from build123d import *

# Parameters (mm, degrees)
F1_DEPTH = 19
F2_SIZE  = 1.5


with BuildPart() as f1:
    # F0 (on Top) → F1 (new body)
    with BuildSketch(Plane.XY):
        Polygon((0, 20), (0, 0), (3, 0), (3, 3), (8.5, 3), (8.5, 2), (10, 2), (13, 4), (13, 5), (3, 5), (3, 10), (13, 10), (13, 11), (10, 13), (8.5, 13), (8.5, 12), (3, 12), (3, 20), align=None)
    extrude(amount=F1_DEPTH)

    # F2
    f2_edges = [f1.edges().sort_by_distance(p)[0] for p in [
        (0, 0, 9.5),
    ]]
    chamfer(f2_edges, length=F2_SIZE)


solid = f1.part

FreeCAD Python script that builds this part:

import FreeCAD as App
import Part
import Sketcher


def edges_at(feature, points):
    """Names of the edges that pass closest to the given points."""
    edges = feature.Shape.Edges
    near = lambda p: min(range(len(edges)), key=lambda i: edges[i].distToShape(Part.Vertex(*p))[0])
    return sorted({f"Edge{near(p) + 1}" for p in points})

doc = App.newDocument("Part")
params = doc.addObject("Spreadsheet::Sheet", "Params")
for row, (alias, value) in enumerate([
    ("sketch1_width", "3 mm"),
    ("sketch1_width2", "10 mm"),
    ("sketch1_height", "20 mm"),
    ("sketch1_height2", "1 mm"),
    ("sketch1_height3", "5 mm"),
    ("pad1_length", "19 mm"),
    ("chamfer_size", "1.5 mm"),
], start=1):
    params.set(f"A{row}", alias)
    params.set(f"B{row}", "=" + value)
    params.setAlias(f"B{row}", alias)

body = doc.addObject("PartDesign::Body", "Body")

sketch1 = body.newObject("Sketcher::SketchObject", "Sketch")
sketch1.AttachmentSupport = (doc.getObject("XY_Plane"), [""])
sketch1.MapMode = "FlatFace"
sketch1.addGeometry(Part.LineSegment(App.Vector(0, 20, 0), App.Vector(0, 0, 0)), False)
sketch1.addGeometry(Part.LineSegment(App.Vector(0, 0, 0), App.Vector(3, 0, 0)), False)
sketch1.addGeometry(Part.LineSegment(App.Vector(3, 0, 0), App.Vector(3, 3, 0)), False)
sketch1.addGeometry(Part.LineSegment(App.Vector(3, 3, 0), App.Vector(8.5, 3, 0)), False)
sketch1.addGeometry(Part.LineSegment(App.Vector(8.5, 3, 0), App.Vector(8.5, 2, 0)), False)
sketch1.addGeometry(Part.LineSegment(App.Vector(8.5, 2, 0), App.Vector(10, 2, 0)), False)
sketch1.addGeometry(Part.LineSegment(App.Vector(10, 2, 0), App.Vector(13, 4, 0)), False)
sketch1.addGeometry(Part.LineSegment(App.Vector(13, 4, 0), App.Vector(13, 5, 0)), False)
sketch1.addGeometry(Part.LineSegment(App.Vector(13, 5, 0), App.Vector(3, 5, 0)), False)
sketch1.addGeometry(Part.LineSegment(App.Vector(3, 5, 0), App.Vector(3, 10, 0)), False)
sketch1.addGeometry(Part.LineSegment(App.Vector(3, 10, 0), App.Vector(13, 10, 0)), False)
sketch1.addGeometry(Part.LineSegment(App.Vector(13, 10, 0), App.Vector(13, 11, 0)), False)
sketch1.addGeometry(Part.LineSegment(App.Vector(13, 11, 0), App.Vector(10, 13, 0)), False)
sketch1.addGeometry(Part.LineSegment(App.Vector(10, 13, 0), App.Vector(8.5, 13, 0)), False)
sketch1.addGeometry(Part.LineSegment(App.Vector(8.5, 13, 0), App.Vector(8.5, 12, 0)), False)
sketch1.addGeometry(Part.LineSegment(App.Vector(8.5, 12, 0), App.Vector(3, 12, 0)), False)
sketch1.addGeometry(Part.LineSegment(App.Vector(3, 12, 0), App.Vector(3, 20, 0)), False)
sketch1.addGeometry(Part.LineSegment(App.Vector(3, 20, 0), App.Vector(0, 20, 0)), False)
sketch1.addConstraint(Sketcher.Constraint("Coincident", 0, 2, 1, 1))
sketch1.addConstraint(Sketcher.Constraint("Coincident", 1, 2, 2, 1))
sketch1.addConstraint(Sketcher.Constraint("Coincident", 2, 2, 3, 1))
sketch1.addConstraint(Sketcher.Constraint("Coincident", 3, 2, 4, 1))
sketch1.addConstraint(Sketcher.Constraint("Coincident", 4, 2, 5, 1))
sketch1.addConstraint(Sketcher.Constraint("Coincident", 5, 2, 6, 1))
sketch1.addConstraint(Sketcher.Constraint("Coincident", 6, 2, 7, 1))
sketch1.addConstraint(Sketcher.Constraint("Coincident", 7, 2, 8, 1))
sketch1.addConstraint(Sketcher.Constraint("Coincident", 8, 2, 9, 1))
sketch1.addConstraint(Sketcher.Constraint("Coincident", 9, 2, 10, 1))
sketch1.addConstraint(Sketcher.Constraint("Coincident", 10, 2, 11, 1))
sketch1.addConstraint(Sketcher.Constraint("Coincident", 11, 2, 12, 1))
sketch1.addConstraint(Sketcher.Constraint("Coincident", 12, 2, 13, 1))
sketch1.addConstraint(Sketcher.Constraint("Coincident", 13, 2, 14, 1))
sketch1.addConstraint(Sketcher.Constraint("Coincident", 14, 2, 15, 1))
sketch1.addConstraint(Sketcher.Constraint("Coincident", 15, 2, 16, 1))
sketch1.addConstraint(Sketcher.Constraint("Coincident", 16, 2, 17, 1))
sketch1.addConstraint(Sketcher.Constraint("Coincident", 17, 2, 0, 1))
sketch1.addConstraint(Sketcher.Constraint("Vertical", 0))
sketch1.addConstraint(Sketcher.Constraint("Horizontal", 1))
sketch1.addConstraint(Sketcher.Constraint("Vertical", 2))
sketch1.addConstraint(Sketcher.Constraint("Horizontal", 3))
sketch1.addConstraint(Sketcher.Constraint("Vertical", 4))
sketch1.addConstraint(Sketcher.Constraint("Horizontal", 5))
sketch1.addConstraint(Sketcher.Constraint("Vertical", 7))
sketch1.addConstraint(Sketcher.Constraint("Horizontal", 8))
sketch1.addConstraint(Sketcher.Constraint("Vertical", 9))
sketch1.addConstraint(Sketcher.Constraint("Horizontal", 10))
sketch1.addConstraint(Sketcher.Constraint("Vertical", 11))
sketch1.addConstraint(Sketcher.Constraint("Horizontal", 13))
sketch1.addConstraint(Sketcher.Constraint("Vertical", 14))
sketch1.addConstraint(Sketcher.Constraint("Horizontal", 15))
sketch1.addConstraint(Sketcher.Constraint("Vertical", 16))
sketch1.addConstraint(Sketcher.Constraint("Horizontal", 17))
sketch1.addConstraint(Sketcher.Constraint("Coincident", 0, 2, -1, 1))
sketch1.addConstraint(Sketcher.Constraint("Vertical", 2, 2, 8, 2))
sketch1.addConstraint(Sketcher.Constraint("Vertical", 7, 2, 10, 2))
sketch1.addConstraint(Sketcher.Constraint("Vertical", 5, 2, 12, 2))
sketch1.addConstraint(Sketcher.Constraint("Vertical", 4, 2, 13, 2))
sketch1.addConstraint(Sketcher.Constraint("Vertical", 9, 2, 15, 2))
sketch1.addConstraint(Sketcher.Constraint("Equal", 17, 2))
sketch1.addConstraint(Sketcher.Constraint("Equal", 4, 7))
sketch1.addConstraint(Sketcher.Constraint("Equal", 7, 11))
sketch1.addConstraint(Sketcher.Constraint("Equal", 11, 14))
sketch1.addConstraint(Sketcher.Constraint("Equal", 6, 12))
sketch1.addConstraint(Sketcher.Constraint("DistanceX", 1, 1, 1, 2, 3.0))
sketch1.addConstraint(Sketcher.Constraint("DistanceX", 8, 2, 8, 1, 10.0))
sketch1.addConstraint(Sketcher.Constraint("DistanceY", 0, 2, 0, 1, 20.0))
sketch1.addConstraint(Sketcher.Constraint("DistanceY", 4, 2, 4, 1, 1.0))
sketch1.addConstraint(Sketcher.Constraint("DistanceY", 9, 1, 9, 2, 5.0))
sketch1.addConstraint(Sketcher.Constraint("DistanceY", 16, 1, 16, 2, 8.0))
sketch1.addConstraint(Sketcher.Constraint("DistanceX", 3, 1, 3, 2, 5.5))
sketch1.addConstraint(Sketcher.Constraint("DistanceX", 5, 1, 5, 2, 1.5))
sketch1.setExpression("Constraints[45]", "Params.sketch1_width")
sketch1.setExpression("Constraints[46]", "Params.sketch1_width2")
sketch1.setExpression("Constraints[47]", "Params.sketch1_height")
sketch1.setExpression("Constraints[48]", "Params.sketch1_height2")
sketch1.setExpression("Constraints[49]", "Params.sketch1_height3")
pad1 = body.newObject("PartDesign::Pad", "Pad")
pad1.Profile = sketch1
pad1.setExpression("Length", "Params.pad1_length")
doc.recompute()

chamfer = body.newObject("PartDesign::Chamfer", "Chamfer")
chamfer.Base = (pad1, edges_at(pad1, [(0, 0, 9.5)]))
chamfer.setExpression("Size", "Params.chamfer_size")

doc.recompute()
